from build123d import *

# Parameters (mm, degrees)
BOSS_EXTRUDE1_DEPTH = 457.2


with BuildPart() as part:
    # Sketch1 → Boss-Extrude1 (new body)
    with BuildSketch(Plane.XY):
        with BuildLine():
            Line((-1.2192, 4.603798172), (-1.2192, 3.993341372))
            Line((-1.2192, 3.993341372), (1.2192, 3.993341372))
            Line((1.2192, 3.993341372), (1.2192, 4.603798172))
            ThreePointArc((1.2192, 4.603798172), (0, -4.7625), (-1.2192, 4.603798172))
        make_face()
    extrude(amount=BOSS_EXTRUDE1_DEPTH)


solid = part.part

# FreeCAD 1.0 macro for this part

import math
import FreeCAD as App
import Part
import Sketcher
from FreeCAD import Vector
Q = App.Units.Quantity

doc = App.newDocument("Part")
params = doc.addObject("Spreadsheet::Sheet", "Params")
for row, (alias, value) in enumerate([
    ("sketch1_radius", "0.1875 in"),
    ("sketch1_width", "0.096 in"),
    ("pad1_length", "18 in"),
], start=1):
    params.set(f"A{row}", alias)
    params.set(f"B{row}", "=" + value)
    params.setAlias(f"B{row}", alias)

body = doc.addObject("PartDesign::Body", "Body")

# Sketch on XY plane
sketch1 = doc.addObject("Sketcher::SketchObject", "Sketch")
body.addObject(sketch1)
sketch1.AttachmentSupport = (doc.XY_Plane, [""])
sketch1.MapMode = "FlatFace"
sketch1.addGeometry([
    Part.LineSegment(Vector(-1.2, 4, 0), Vector(-1.2, 4.6, 0)),
    Part.ArcOfCircle(Part.Circle(Vector(0, 0, 0), Vector(0, 0, 1), 4.8), math.radians(105), math.radians(435)),
    Part.LineSegment(Vector(1.2, 4.6, 0), Vector(1.2, 4, 0)),
    Part.LineSegment(Vector(1.2, 4, 0), Vector(-1.2, 4, 0)),
], False)
sketch1.addConstraint([
    Sketcher.Constraint("Coincident", 0, 2, 1, 1),
    Sketcher.Constraint("Coincident", 1, 2, 2, 1),
    Sketcher.Constraint("Coincident", 2, 2, 3, 1),
    Sketcher.Constraint("Coincident", 3, 2, 0, 1),
    Sketcher.Constraint("Vertical", 0),
    Sketcher.Constraint("Vertical", 2),
    Sketcher.Constraint("Horizontal", 3),
    Sketcher.Constraint("Coincident", 1, 3, -1, 1),
    Sketcher.Constraint("Horizontal", 0, 2, 1, 2),
    Sketcher.Constraint("Radius", 1, Q("0.1875 in")),
    Sketcher.Constraint("DistanceX", 3, 2, 3, 1, Q("0.096 in")),
    Sketcher.Constraint("DistanceY", 0, 1, 0, 2, 0.610457),
])
sketch1.setExpression("Constraints[9]", "Params.sketch1_radius")
sketch1.setExpression("Constraints[10]", "Params.sketch1_width")
pad1 = doc.addObject("PartDesign::Pad", "Pad")
body.addObject(pad1)
pad1.Profile = sketch1
pad1.setExpression("Length", "Params.pad1_length")

doc.recompute()
